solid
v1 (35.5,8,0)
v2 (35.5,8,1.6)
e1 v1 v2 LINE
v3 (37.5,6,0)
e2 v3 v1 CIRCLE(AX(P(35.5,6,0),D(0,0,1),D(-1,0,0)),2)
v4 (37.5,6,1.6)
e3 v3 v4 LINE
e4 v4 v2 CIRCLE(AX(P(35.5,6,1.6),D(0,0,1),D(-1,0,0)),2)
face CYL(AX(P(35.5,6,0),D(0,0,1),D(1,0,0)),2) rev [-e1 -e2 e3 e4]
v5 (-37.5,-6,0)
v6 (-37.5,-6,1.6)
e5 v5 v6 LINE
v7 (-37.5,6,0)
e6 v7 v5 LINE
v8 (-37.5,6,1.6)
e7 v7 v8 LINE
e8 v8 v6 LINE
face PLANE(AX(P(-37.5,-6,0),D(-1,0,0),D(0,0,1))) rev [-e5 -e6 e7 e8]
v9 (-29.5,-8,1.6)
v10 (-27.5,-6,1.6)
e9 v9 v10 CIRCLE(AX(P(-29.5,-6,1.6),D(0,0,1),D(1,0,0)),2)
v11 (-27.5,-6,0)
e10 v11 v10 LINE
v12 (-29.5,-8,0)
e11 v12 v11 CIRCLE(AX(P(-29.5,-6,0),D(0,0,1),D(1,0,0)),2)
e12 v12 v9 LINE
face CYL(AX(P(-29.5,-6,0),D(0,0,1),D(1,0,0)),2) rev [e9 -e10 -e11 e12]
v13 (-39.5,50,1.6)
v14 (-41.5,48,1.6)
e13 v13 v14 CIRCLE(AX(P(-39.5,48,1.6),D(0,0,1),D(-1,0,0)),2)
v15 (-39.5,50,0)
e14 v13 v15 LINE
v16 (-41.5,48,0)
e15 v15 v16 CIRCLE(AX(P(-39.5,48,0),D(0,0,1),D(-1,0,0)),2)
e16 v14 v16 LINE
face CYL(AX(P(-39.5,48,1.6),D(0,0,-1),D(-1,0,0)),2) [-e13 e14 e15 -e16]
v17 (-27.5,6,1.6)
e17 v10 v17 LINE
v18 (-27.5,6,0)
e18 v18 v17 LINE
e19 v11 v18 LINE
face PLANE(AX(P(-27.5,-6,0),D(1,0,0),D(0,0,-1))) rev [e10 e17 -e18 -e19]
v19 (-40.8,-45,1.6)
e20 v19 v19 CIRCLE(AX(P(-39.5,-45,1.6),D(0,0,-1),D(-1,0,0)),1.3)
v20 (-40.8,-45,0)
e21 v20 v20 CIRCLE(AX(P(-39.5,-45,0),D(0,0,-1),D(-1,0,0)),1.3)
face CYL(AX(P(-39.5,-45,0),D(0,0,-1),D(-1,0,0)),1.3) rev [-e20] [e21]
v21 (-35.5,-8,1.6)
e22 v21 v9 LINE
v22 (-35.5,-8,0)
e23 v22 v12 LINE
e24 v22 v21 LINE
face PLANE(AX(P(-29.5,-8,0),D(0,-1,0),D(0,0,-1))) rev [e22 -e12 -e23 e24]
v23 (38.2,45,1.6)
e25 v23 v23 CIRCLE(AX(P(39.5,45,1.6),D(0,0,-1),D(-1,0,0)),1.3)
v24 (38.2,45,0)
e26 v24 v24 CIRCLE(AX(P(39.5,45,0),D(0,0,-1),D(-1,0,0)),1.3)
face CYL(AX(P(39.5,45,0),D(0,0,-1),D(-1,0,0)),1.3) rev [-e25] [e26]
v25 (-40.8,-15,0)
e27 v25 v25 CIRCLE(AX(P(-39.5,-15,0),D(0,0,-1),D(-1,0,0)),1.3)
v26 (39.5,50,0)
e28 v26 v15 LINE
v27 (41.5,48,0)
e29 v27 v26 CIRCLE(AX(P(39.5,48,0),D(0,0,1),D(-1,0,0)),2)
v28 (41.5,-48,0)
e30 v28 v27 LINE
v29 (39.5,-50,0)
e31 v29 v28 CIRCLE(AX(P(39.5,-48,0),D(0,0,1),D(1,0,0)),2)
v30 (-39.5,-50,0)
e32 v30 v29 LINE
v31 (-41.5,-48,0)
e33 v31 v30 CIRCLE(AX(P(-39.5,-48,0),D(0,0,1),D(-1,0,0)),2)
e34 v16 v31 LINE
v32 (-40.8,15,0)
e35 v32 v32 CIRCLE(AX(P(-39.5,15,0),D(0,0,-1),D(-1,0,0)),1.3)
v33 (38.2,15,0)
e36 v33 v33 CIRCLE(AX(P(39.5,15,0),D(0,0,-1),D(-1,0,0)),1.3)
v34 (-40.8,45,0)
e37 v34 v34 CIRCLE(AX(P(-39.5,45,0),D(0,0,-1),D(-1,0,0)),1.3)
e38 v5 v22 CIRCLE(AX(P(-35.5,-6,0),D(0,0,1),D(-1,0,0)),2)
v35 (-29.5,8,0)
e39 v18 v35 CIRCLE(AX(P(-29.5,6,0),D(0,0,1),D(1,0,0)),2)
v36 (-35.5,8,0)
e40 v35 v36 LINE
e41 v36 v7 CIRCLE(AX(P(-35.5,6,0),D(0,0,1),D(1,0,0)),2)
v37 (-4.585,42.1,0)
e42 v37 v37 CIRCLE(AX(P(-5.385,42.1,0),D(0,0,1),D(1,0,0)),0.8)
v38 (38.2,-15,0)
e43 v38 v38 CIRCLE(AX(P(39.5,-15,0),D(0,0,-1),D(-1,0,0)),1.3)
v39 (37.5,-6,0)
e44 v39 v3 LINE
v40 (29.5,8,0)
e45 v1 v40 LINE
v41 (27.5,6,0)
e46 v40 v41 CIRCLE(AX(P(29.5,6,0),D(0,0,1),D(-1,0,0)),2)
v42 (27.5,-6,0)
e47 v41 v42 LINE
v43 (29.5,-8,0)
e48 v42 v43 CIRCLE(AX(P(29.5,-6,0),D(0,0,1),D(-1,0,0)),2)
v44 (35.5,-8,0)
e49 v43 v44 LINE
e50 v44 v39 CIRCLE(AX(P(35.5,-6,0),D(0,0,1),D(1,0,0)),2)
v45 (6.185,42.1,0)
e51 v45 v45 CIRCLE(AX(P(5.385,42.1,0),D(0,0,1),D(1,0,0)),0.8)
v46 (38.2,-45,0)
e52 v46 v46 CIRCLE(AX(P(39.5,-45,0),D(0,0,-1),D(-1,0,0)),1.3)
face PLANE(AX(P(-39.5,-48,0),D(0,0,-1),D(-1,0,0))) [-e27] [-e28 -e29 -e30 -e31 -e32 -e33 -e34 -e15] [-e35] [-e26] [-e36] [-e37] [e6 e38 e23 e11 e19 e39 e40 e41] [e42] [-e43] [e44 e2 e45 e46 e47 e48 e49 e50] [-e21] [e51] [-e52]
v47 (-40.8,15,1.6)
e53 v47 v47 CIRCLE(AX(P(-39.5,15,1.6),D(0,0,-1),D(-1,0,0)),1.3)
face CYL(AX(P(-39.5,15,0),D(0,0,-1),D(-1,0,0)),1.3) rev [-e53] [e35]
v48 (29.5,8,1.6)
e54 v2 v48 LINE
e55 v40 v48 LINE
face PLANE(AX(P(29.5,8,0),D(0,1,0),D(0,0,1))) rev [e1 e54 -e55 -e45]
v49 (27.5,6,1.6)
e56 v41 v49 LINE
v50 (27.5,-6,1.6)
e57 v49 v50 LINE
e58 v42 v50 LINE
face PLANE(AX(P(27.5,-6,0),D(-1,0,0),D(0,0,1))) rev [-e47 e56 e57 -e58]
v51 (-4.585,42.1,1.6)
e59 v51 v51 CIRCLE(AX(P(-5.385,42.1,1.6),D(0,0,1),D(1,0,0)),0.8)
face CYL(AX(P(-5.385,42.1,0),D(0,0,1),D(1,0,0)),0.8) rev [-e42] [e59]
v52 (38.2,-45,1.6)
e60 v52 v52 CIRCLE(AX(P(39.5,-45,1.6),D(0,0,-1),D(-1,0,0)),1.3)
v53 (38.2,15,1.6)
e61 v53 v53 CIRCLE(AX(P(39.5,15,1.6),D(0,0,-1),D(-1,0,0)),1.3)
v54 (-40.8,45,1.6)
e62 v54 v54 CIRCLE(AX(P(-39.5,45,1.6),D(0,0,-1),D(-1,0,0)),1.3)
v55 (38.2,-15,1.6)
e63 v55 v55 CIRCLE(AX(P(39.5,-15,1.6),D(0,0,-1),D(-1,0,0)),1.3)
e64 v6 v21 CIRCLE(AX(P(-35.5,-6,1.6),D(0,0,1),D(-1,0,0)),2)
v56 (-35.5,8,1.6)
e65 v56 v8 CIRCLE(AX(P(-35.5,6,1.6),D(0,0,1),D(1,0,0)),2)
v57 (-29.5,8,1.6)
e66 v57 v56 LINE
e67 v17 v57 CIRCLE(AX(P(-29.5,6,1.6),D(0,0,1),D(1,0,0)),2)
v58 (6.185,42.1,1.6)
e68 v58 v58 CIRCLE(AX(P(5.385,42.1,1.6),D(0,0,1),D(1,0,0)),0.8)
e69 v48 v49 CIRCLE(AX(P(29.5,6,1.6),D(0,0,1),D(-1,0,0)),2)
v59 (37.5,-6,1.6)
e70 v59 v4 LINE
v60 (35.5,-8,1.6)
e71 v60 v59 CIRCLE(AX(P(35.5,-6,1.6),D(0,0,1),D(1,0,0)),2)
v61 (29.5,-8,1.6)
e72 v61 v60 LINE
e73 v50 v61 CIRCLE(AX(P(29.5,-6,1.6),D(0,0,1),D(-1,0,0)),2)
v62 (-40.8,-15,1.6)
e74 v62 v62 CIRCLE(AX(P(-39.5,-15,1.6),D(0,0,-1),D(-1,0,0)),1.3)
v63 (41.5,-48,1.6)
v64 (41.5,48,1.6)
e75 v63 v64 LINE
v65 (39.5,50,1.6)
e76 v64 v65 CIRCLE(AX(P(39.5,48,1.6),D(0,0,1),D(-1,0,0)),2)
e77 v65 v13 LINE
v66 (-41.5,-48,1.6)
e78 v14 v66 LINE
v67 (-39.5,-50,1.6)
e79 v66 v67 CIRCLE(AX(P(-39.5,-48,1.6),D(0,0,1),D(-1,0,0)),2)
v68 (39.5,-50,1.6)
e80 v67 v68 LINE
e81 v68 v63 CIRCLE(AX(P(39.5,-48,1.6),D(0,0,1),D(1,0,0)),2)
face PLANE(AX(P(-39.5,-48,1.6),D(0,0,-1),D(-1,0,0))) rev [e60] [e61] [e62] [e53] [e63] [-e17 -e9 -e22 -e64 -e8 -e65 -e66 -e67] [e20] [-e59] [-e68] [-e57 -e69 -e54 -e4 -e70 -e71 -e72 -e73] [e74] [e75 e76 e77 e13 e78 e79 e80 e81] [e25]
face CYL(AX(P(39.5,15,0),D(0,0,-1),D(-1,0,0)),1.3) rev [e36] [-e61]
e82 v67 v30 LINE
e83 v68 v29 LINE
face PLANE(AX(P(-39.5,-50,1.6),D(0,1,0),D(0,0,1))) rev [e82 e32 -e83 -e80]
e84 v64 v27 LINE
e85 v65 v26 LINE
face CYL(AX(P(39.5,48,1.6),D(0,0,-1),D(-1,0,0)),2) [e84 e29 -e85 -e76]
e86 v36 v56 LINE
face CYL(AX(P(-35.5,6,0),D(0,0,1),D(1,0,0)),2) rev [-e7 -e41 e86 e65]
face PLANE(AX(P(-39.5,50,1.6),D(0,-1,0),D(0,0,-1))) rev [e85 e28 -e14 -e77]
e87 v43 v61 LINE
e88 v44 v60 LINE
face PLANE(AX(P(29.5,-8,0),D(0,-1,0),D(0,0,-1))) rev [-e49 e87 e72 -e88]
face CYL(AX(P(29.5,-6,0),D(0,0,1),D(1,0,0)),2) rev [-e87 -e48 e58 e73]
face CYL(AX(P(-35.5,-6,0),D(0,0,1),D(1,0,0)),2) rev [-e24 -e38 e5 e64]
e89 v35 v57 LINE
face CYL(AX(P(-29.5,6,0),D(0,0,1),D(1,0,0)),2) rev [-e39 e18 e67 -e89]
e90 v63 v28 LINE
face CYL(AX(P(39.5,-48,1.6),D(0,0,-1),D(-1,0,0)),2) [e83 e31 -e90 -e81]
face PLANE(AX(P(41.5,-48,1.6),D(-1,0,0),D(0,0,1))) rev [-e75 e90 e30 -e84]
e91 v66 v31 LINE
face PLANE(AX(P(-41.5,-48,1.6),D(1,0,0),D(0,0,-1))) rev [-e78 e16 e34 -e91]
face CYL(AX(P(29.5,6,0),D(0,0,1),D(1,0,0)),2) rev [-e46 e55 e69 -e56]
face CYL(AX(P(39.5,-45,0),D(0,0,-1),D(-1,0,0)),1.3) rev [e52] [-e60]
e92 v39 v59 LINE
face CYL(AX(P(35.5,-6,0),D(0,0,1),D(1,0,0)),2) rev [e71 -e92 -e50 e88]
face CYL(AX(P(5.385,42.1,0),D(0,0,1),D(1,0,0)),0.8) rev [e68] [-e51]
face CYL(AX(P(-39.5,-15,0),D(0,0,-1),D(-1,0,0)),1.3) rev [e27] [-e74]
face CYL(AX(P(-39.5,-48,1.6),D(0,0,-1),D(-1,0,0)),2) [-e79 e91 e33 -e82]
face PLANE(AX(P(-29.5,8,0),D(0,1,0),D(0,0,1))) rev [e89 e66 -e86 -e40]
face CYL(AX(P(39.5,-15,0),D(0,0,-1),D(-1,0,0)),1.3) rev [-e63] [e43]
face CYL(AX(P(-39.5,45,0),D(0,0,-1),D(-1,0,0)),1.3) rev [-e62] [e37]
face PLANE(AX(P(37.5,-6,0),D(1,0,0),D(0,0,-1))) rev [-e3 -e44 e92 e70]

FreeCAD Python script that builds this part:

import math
import FreeCAD as App
import Part
import Sketcher
from FreeCAD import Vector

doc = App.newDocument("Part")
body = doc.addObject("PartDesign::Body", "Body")

# Sketch on XY plane
sketch1 = body.newObject("Sketcher::SketchObject", "Sketch")
sketch1.AttachmentSupport = (doc.getObject("XY_Plane"), [""])
sketch1.MapMode = "FlatFace"
sketch1.addGeometry([
    Part.LineSegment(Vector(-39.5, -50, 0), Vector(39.5, -50, 0)),  # 0
    Part.ArcOfCircle(Part.Circle(Vector(39.5, -48, 0), Vector(0, 0, 1), 2), math.radians(-90), math.radians(0)),  # 1
    Part.LineSegment(Vector(41.5, -48, 0), Vector(41.5, 48, 0)),  # 2
    Part.ArcOfCircle(Part.Circle(Vector(39.5, 48, 0), Vector(0, 0, 1), 2), math.radians(0), math.radians(90)),  # 3
    Part.LineSegment(Vector(39.5, 50, 0), Vector(-39.5, 50, 0)),  # 4
    Part.ArcOfCircle(Part.Circle(Vector(-39.5, 48, 0), Vector(0, 0, 1), 2), math.radians(90), math.radians(180)),  # 5
    Part.LineSegment(Vector(-41.5, 48, 0), Vector(-41.5, -48, 0)),  # 6
    Part.ArcOfCircle(Part.Circle(Vector(-39.5, -48, 0), Vector(0, 0, 1), 2), math.radians(-180), math.radians(-90)),  # 7
], False)
sketch1.addConstraint([
    Sketcher.Constraint("Tangent", 0, 2, 1, 1),
    Sketcher.Constraint("Tangent", 1, 2, 2, 1),
    Sketcher.Constraint("Tangent", 2, 2, 3, 1),
    Sketcher.Constraint("Tangent", 3, 2, 4, 1),
    Sketcher.Constraint("Tangent", 4, 2, 5, 1),
    Sketcher.Constraint("Tangent", 5, 2, 6, 1),
    Sketcher.Constraint("Tangent", 6, 2, 7, 1),
    Sketcher.Constraint("Tangent", 7, 2, 0, 1),
    Sketcher.Constraint("Horizontal", 0),
    Sketcher.Constraint("Vertical", 2),
    Sketcher.Constraint("Horizontal", 4),
    Sketcher.Constraint("Vertical", 6),
    Sketcher.Constraint("Equal", 1, 3),
    Sketcher.Constraint("Equal", 3, 5),
    Sketcher.Constraint("Equal", 5, 7),
    Sketcher.Constraint("Symmetric", 1, 3, 5, 3, -1, 1),
    Sketcher.Constraint("Radius", 1, 2.0),
    Sketcher.Constraint("DistanceX", 0, 1, 0, 2, 79.0),
    Sketcher.Constraint("DistanceY", 2, 1, 2, 2, 96.0),
])
pad1 = body.newObject("PartDesign::Pad", "Pad")
pad1.Profile = sketch1
pad1.Length = 1.6

# Sketch on XY plane
sketch2 = body.newObject("Sketcher::SketchObject", "Sketch001")
sketch2.AttachmentSupport = (doc.getObject("XY_Plane"), [""])
sketch2.MapMode = "FlatFace"
sketch2.AttachmentOffset = App.Placement(Vector(0, 0, 1.6), App.Rotation())
sketch2.addGeometry([
    Part.Circle(Vector(-5.4, 42.1, 0), Vector(0, 0, 1), 0.8),
    Part.Circle(Vector(5.4, 42.1, 0), Vector(0, 0, 1), 0.8),
], False)
sketch2.addConstraint([
    Sketcher.Constraint("Equal", 0, 1),
    Sketcher.Constraint("Symmetric", 0, 3, 1, 3, -2),
    Sketcher.Constraint("Diameter", 0, 1.6),
    Sketcher.Constraint("DistanceY", -1, 1, 0, 3, 42.1),
    Sketcher.Constraint("DistanceX", 0, 3, 1, 3, 10.77),
])
pocket1 = body.newObject("PartDesign::Pocket", "Pocket")
pocket1.Profile = sketch2
pocket1.Type = "ThroughAll"

# Sketch on XY plane
sketch3 = body.newObject("Sketcher::SketchObject", "Sketch002")
sketch3.AttachmentSupport = (doc.getObject("XY_Plane"), [""])
sketch3.MapMode = "FlatFace"
sketch3.AttachmentOffset = App.Placement(Vector(0, 0, 1.6), App.Rotation())
sketch3.addGeometry([
    Part.LineSegment(Vector(37.5, -6, 0), Vector(37.5, 6, 0)),  # 0
    Part.ArcOfCircle(Part.Circle(Vector(35.5, 6, 0), Vector(0, 0, 1), 2), math.radians(0), math.radians(90)),  # 1
    Part.LineSegment(Vector(35.5, 8, 0), Vector(29.5, 8, 0)),  # 2
    Part.ArcOfCircle(Part.Circle(Vector(29.5, 6, 0), Vector(0, 0, 1), 2), math.radians(90), math.radians(180)),  # 3
    Part.LineSegment(Vector(27.5, 6, 0), Vector(27.5, -6, 0)),  # 4
    Part.ArcOfCircle(Part.Circle(Vector(29.5, -6, 0), Vector(0, 0, 1), 2), math.radians(-180), math.radians(-90)),  # 5
    Part.LineSegment(Vector(29.5, -8, 0), Vector(35.5, -8, 0)),  # 6
    Part.ArcOfCircle(Part.Circle(Vector(35.5, -6, 0), Vector(0, 0, 1), 2), math.radians(-90), math.radians(0)),  # 7
    Part.LineSegment(Vector(-35.5, -8, 0), Vector(-29.5, -8, 0)),  # 8
    Part.ArcOfCircle(Part.Circle(Vector(-29.5, -6, 0), Vector(0, 0, 1), 2), math.radians(-90), math.radians(0)),  # 9
    Part.LineSegment(Vector(-27.5, -6, 0), Vector(-27.5, 6, 0)),  # 10
    Part.ArcOfCircle(Part.Circle(Vector(-29.5, 6, 0), Vector(0, 0, 1), 2), math.radians(0), math.radians(90)),  # 11
    Part.LineSegment(Vector(-29.5, 8, 0), Vector(-35.5, 8, 0)),  # 12
    Part.ArcOfCircle(Part.Circle(Vector(-35.5, 6, 0), Vector(0, 0, 1), 2), math.radians(90), math.radians(180)),  # 13
    Part.LineSegment(Vector(-37.5, 6, 0), Vector(-37.5, -6, 0)),  # 14
    Part.ArcOfCircle(Part.Circle(Vector(-35.5, -6, 0), Vector(0, 0, 1), 2), math.radians(-180), math.radians(-90)),  # 15
], False)
sketch3.addConstraint([
    Sketcher.Constraint("Tangent", 0, 2, 1, 1),
    Sketcher.Constraint("Tangent", 1, 2, 2, 1),
    Sketcher.Constraint("Tangent", 2, 2, 3, 1),
    Sketcher.Constraint("Tangent", 3, 2, 4, 1),
    Sketcher.Constraint("Tangent", 4, 2, 5, 1),
    Sketcher.Constraint("Tangent", 5, 2, 6, 1),
    Sketcher.Constraint("Tangent", 6, 2, 7, 1),
    Sketcher.Constraint("Tangent", 7, 2, 0, 1),
    Sketcher.Constraint("Tangent", 8, 2, 9, 1),
    Sketcher.Constraint("Tangent", 9, 2, 10, 1),
    Sketcher.Constraint("Tangent", 10, 2, 11, 1),
    Sketcher.Constraint("Tangent", 11, 2, 12, 1),
    Sketcher.Constraint("Tangent", 12, 2, 13, 1),
    Sketcher.Constraint("Tangent", 13, 2, 14, 1),
    Sketcher.Constraint("Tangent", 14, 2, 15, 1),
    Sketcher.Constraint("Tangent", 15, 2, 8, 1),
    Sketcher.Constraint("Vertical", 0),
    Sketcher.Constraint("Horizontal", 2),
    Sketcher.Constraint("Vertical", 4),
    Sketcher.Constraint("Horizontal", 6),
    Sketcher.Constraint("Horizontal", 8),
    Sketcher.Constraint("Vertical", 10),
    Sketcher.Constraint("Horizontal", 12),
    Sketcher.Constraint("Vertical", 14),
    Sketcher.Constraint("Equal", 1, 3),
    Sketcher.Constraint("Equal", 3, 5),
    Sketcher.Constraint("Equal", 5, 7),
    Sketcher.Constraint("Equal", 7, 9),
    Sketcher.Constraint("Equal", 9, 11),
    Sketcher.Constraint("Equal", 11, 13),
    Sketcher.Constraint("Equal", 13, 15),
    Sketcher.Constraint("Symmetric", 3, 3, 9, 3, -1, 1),
    Sketcher.Constraint("Symmetric", 7, 3, 13, 3, -1, 1),
    Sketcher.Constraint("Horizontal", 7, 3, 9, 3),
    Sketcher.Constraint("Radius", 1, 2.0),
    Sketcher.Constraint("DistanceX", 2, 2, 2, 1, 6.0),
    Sketcher.Constraint("DistanceY", 0, 1, 0, 2, 12.0),
    Sketcher.Constraint("DistanceX", 9, 3, 5, 3, 59.0),
])
pocket2 = body.newObject("PartDesign::Pocket", "Pocket001")
pocket2.Profile = sketch3
pocket2.Type = "ThroughAll"

# Sketch on XY plane
sketch4 = body.newObject("Sketcher::SketchObject", "Sketch003")
sketch4.AttachmentSupport = (doc.getObject("XY_Plane"), [""])
sketch4.MapMode = "FlatFace"
sketch4.addGeometry([
    Part.Circle(Vector(-39.5, 45, 0), Vector(0, 0, 1), 1.3),
    Part.Circle(Vector(-39.5, -15, 0), Vector(0, 0, 1), 1.3),
    Part.Circle(Vector(-39.5, -45, 0), Vector(0, 0, 1), 1.3),
    Part.Circle(Vector(-39.5, 15, 0), Vector(0, 0, 1), 1.3),
], False)
sketch4.addConstraint([
    Sketcher.Constraint("Equal", 0, 1),
    Sketcher.Constraint("Equal", 1, 2),
    Sketcher.Constraint("Equal", 2, 3),
    Sketcher.Constraint("Symmetric", 0, 3, 2, 3, -1),
    Sketcher.Constraint("Symmetric", 1, 3, 3, 3, -1),
    Sketcher.Constraint("Vertical", 0, 3, 1, 3),
    Sketcher.Constraint("Diameter", 0, 2.6),
    Sketcher.Constraint("DistanceY", -1, 1, 0, 3, 45.0),
    Sketcher.Constraint("DistanceY", 1, 3, -1, 1, 15.0),
    Sketcher.Constraint("DistanceX", 0, 3, -1, 1, 39.5),
])
doc.recompute()
hole = body.newObject("PartDesign::Hole", "Hole")
hole.Profile = sketch4
hole.ThreadType = "None"
hole.Diameter = 2.6
hole.DepthType = "ThroughAll"
hole.Reversed = True
doc.recompute()

mirrored = body.newObject("PartDesign::Mirrored", "Mirrored")
mirrored.Originals = [hole]
mirrored.MirrorPlane = (doc.getObject("YZ_Plane"), [""])
body.Tip = mirrored

doc.recompute()
